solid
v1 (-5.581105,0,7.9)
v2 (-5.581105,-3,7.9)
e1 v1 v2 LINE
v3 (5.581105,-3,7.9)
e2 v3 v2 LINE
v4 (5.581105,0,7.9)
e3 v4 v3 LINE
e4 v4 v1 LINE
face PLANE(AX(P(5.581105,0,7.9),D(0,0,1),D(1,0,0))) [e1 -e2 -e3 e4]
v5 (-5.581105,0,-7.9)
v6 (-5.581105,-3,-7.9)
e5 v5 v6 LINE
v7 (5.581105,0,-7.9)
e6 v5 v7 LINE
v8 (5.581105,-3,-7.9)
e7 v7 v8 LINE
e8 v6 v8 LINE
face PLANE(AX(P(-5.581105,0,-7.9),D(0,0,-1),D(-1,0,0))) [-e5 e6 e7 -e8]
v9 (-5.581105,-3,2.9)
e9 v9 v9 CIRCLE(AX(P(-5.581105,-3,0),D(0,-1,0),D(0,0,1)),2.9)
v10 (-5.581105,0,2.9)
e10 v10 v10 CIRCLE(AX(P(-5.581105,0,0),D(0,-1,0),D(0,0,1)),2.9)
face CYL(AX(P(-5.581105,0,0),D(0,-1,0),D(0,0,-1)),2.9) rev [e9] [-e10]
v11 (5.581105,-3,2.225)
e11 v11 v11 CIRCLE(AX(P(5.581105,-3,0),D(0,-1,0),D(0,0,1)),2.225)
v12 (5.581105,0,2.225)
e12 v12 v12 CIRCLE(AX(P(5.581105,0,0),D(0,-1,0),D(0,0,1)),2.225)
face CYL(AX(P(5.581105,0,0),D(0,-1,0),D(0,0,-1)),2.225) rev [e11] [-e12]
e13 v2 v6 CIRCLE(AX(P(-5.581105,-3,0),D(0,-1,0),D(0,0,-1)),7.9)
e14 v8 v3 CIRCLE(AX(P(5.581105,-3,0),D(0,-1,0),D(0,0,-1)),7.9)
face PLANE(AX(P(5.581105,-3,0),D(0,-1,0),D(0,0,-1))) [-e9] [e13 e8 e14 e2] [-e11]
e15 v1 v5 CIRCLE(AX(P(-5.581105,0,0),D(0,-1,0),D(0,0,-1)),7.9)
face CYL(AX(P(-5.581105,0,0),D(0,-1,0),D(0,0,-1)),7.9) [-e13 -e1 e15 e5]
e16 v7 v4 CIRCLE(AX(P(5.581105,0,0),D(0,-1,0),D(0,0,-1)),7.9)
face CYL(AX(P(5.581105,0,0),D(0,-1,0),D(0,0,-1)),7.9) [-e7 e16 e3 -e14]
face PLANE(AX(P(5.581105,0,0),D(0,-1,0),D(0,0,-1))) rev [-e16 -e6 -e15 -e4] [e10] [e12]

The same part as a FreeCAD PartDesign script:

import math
import FreeCAD as App
import Part
import Sketcher
from FreeCAD import Vector
Q = App.Units.Quantity

doc = App.newDocument("Part")
body = doc.addObject("PartDesign::Body", "Body")

sketch1 = doc.addObject("Sketcher::SketchObject", "Sketch")
body.addObject(sketch1)
sketch1.AttachmentSupport = (doc.XZ_Plane, [""])
sketch1.MapMode = "FlatFace"
sketch1.AttachmentOffset = App.Placement(Vector(0, 0, 3), App.Rotation())
sketch1.addGeometry([
    Part.LineSegment(Vector(5.6, 7.9, 0), Vector(-5.6, 7.9, 0)),
    Part.ArcOfCircle(Part.Circle(Vector(-5.6, 0, 0), Vector(0, 0, 1), 7.9), math.radians(90), math.radians(270)),
    Part.LineSegment(Vector(-5.6, -7.9, 0), Vector(5.6, -7.9, 0)),
    Part.ArcOfCircle(Part.Circle(Vector(5.6, 0, 0), Vector(0, 0, 1), 7.9), math.radians(-90), math.radians(90)),
    Part.Circle(Vector(-5.6, 0, 0), Vector(0, 0, 1), 2.9),
    Part.Circle(Vector(5.6, 0, 0), Vector(0, 0, 1), 2.2),
], False)
sketch1.addConstraint([
    Sketcher.Constraint("Tangent", 0, 2, 1, 1),
    Sketcher.Constraint("Tangent", 1, 2, 2, 1),
    Sketcher.Constraint("Tangent", 2, 2, 3, 1),
    Sketcher.Constraint("Tangent", 3, 2, 0, 1),
    Sketcher.Constraint("Horizontal", 0),
    Sketcher.Constraint("Horizontal", 2),
    Sketcher.Constraint("Coincident", 4, 3, 1, 3),
    Sketcher.Constraint("Coincident", 5, 3, 3, 3),
    Sketcher.Constraint("Symmetric", 1, 3, 3, 3, -1, 1),
    Sketcher.Constraint("Diameter", 4, Q("5.8 mm")),
    Sketcher.Constraint("Radius", 1, Q("7.9 mm")),
    Sketcher.Constraint("Diameter", 5, Q("4.45 mm")),
    Sketcher.Constraint("DistanceX", 0, 2, 0, 1, Q("11.16221 mm")),
])
pad1 = doc.addObject("PartDesign::Pad", "Pad")
body.addObject(pad1)
pad1.Profile = sketch1
pad1.Length = 3
pad1.Reversed = True

doc.recompute()
